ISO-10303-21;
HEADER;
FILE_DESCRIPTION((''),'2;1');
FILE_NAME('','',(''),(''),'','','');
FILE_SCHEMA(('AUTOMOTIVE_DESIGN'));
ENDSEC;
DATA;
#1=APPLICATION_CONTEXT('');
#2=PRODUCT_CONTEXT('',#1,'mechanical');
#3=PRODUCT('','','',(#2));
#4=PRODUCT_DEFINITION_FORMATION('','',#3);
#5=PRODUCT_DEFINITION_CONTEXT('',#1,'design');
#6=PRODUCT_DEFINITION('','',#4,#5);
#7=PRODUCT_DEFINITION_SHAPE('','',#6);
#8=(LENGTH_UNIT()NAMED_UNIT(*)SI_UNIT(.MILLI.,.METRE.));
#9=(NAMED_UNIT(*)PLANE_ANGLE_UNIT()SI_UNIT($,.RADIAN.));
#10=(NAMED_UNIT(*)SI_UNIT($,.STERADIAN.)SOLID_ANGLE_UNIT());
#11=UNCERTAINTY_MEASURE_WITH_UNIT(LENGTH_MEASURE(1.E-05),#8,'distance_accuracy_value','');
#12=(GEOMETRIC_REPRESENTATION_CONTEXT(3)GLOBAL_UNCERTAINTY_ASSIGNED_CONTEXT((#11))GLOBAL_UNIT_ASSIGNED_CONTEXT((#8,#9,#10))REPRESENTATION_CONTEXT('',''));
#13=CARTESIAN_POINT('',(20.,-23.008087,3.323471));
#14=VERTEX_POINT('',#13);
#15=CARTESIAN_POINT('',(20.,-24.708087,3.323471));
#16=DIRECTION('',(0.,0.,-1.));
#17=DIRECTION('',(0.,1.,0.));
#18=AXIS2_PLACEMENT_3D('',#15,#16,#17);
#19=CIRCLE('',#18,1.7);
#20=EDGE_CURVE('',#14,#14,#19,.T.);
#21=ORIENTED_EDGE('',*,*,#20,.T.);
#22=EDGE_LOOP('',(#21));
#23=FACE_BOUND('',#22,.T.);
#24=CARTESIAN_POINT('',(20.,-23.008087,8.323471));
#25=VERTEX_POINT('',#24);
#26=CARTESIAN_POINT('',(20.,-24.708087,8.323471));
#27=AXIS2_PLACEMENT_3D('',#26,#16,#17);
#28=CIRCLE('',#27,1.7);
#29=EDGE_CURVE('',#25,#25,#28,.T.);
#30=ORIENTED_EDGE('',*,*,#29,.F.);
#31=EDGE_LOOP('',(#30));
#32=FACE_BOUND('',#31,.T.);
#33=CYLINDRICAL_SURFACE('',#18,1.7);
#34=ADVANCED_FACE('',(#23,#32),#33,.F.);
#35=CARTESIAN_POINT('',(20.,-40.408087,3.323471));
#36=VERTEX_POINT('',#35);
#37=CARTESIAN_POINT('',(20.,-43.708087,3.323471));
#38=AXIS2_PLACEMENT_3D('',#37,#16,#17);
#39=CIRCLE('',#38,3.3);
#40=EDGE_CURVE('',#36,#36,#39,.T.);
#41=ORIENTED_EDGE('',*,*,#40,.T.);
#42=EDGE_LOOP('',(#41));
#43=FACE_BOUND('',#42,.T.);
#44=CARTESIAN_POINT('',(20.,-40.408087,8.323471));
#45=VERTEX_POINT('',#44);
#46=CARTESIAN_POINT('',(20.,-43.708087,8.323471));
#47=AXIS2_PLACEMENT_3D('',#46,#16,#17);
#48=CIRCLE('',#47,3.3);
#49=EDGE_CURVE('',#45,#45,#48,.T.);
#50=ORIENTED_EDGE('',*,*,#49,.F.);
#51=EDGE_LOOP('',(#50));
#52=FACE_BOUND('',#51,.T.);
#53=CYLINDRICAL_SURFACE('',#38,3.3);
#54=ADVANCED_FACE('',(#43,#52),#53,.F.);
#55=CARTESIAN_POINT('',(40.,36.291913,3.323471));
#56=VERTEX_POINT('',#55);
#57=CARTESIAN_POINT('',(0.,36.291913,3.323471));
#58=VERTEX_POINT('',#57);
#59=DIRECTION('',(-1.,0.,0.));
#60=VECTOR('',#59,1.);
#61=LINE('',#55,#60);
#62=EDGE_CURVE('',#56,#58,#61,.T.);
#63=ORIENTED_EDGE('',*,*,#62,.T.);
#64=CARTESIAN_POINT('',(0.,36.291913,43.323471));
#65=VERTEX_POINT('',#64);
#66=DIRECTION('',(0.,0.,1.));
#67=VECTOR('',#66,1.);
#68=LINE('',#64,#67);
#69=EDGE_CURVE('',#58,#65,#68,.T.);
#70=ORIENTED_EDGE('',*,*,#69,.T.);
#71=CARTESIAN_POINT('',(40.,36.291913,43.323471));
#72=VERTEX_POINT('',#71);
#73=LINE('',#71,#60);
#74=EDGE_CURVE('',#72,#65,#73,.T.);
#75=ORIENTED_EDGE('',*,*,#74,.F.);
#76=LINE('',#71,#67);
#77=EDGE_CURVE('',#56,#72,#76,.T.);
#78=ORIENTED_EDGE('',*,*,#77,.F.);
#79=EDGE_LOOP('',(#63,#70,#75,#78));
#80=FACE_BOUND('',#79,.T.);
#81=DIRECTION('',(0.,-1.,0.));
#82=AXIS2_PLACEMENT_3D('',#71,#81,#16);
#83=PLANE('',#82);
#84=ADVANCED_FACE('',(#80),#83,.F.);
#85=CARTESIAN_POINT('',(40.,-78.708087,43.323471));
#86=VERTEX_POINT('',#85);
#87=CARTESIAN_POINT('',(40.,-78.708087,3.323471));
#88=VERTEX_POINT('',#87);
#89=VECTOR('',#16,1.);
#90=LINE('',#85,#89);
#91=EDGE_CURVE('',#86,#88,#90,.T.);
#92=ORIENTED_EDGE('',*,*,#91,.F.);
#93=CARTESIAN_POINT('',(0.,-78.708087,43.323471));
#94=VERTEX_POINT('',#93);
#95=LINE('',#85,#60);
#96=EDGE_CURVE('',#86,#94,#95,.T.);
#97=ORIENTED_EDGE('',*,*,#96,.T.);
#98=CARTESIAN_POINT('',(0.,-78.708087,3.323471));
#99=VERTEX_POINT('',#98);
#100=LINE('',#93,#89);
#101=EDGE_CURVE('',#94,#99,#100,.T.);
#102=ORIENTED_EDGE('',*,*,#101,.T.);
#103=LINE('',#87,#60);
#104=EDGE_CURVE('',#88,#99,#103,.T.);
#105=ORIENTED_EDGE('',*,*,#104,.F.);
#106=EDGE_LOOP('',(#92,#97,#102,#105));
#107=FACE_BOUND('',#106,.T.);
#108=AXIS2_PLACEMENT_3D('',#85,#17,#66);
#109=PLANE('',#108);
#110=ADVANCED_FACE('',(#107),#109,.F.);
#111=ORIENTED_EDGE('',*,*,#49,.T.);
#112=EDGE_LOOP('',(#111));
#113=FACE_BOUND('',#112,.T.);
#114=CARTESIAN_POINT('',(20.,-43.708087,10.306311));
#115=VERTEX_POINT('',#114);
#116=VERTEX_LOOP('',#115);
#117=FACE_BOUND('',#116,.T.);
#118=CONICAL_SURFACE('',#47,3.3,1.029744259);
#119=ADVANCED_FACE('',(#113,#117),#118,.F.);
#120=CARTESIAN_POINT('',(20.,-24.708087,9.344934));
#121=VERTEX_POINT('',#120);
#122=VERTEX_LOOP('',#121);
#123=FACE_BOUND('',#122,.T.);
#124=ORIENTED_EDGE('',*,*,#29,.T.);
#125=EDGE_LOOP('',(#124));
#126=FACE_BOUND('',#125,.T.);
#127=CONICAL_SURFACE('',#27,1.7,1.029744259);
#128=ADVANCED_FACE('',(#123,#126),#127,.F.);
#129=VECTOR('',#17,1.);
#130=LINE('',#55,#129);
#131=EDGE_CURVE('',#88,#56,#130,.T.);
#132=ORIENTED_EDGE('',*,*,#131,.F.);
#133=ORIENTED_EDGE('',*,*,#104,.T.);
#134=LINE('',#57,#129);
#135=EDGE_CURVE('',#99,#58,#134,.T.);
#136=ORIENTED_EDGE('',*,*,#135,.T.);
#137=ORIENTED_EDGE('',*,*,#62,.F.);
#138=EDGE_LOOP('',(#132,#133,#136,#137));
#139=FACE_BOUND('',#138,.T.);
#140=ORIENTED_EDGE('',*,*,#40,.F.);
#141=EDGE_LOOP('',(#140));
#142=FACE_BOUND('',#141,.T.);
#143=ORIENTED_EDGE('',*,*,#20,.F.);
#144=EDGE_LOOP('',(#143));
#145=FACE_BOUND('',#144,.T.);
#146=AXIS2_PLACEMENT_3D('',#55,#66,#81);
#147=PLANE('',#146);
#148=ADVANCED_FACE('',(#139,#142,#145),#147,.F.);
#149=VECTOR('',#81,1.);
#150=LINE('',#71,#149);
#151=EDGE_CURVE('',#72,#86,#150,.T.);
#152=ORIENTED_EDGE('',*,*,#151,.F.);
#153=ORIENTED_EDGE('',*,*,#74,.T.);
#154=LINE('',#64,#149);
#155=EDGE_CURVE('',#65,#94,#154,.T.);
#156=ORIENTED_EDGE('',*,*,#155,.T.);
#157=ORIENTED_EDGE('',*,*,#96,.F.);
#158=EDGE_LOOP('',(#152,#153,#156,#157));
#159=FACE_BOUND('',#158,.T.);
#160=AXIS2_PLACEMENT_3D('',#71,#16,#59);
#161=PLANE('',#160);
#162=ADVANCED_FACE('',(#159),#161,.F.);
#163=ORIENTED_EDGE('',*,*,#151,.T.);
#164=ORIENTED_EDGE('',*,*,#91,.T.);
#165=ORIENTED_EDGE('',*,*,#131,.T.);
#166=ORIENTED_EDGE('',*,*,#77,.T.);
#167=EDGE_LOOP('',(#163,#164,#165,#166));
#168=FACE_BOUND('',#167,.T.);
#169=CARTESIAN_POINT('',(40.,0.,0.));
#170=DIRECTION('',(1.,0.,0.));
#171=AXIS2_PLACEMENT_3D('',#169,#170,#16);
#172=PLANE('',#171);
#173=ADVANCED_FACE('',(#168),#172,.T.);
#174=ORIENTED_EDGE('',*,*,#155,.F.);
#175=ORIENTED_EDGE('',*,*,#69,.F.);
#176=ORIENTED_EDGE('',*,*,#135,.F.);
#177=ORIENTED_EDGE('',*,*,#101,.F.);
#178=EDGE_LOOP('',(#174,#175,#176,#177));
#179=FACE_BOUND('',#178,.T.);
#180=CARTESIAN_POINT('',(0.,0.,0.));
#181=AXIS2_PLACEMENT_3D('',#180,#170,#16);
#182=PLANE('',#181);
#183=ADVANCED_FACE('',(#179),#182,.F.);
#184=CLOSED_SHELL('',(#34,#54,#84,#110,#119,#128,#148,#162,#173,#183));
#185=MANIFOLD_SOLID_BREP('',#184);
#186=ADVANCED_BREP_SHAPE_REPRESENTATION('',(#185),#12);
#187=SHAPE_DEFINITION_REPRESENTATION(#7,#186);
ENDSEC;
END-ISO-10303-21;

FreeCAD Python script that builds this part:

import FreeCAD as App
import Part
import Sketcher

V = App.Vector

doc = App.newDocument("Part")
body = doc.addObject("PartDesign::Body", "Body")

sketch1 = doc.addObject("Sketcher::SketchObject", "Sketch")
body.addObject(sketch1)
sketch1.AttachmentSupport = (doc.YZ_Plane, [""])
sketch1.MapMode = "FlatFace"
sketch1.addGeometry(Part.LineSegment(V(36.291913, 43.323471, 0), V(-78.708087, 43.323471, 0)), False)
sketch1.addGeometry(Part.LineSegment(V(-78.708087, 43.323471, 0), V(-78.708087, 3.323471, 0)), False)
sketch1.addGeometry(Part.LineSegment(V(-78.708087, 3.323471, 0), V(36.291913, 3.323471, 0)), False)
sketch1.addGeometry(Part.LineSegment(V(36.291913, 3.323471, 0), V(36.291913, 43.323471, 0)), False)
sketch1.addConstraint(Sketcher.Constraint("Coincident", 0, 2, 1, 1))
sketch1.addConstraint(Sketcher.Constraint("Coincident", 1, 2, 2, 1))
sketch1.addConstraint(Sketcher.Constraint("Coincident", 2, 2, 3, 1))
sketch1.addConstraint(Sketcher.Constraint("Coincident", 3, 2, 0, 1))
sketch1.addConstraint(Sketcher.Constraint("Horizontal", 0))
sketch1.addConstraint(Sketcher.Constraint("Vertical", 1))
sketch1.addConstraint(Sketcher.Constraint("Horizontal", 2))
sketch1.addConstraint(Sketcher.Constraint("Vertical", 3))
sketch1.addConstraint(Sketcher.Constraint("DistanceX", 0, 2, 0, 1, 115.0))
sketch1.addConstraint(Sketcher.Constraint("DistanceY", 1, 2, 1, 1, 40.0))
sketch1.addConstraint(Sketcher.Constraint("DistanceY", -1, 1, 0, 2, 43.323471))
sketch1.addConstraint(Sketcher.Constraint("DistanceX", 0, 2, -1, 1, 78.708087))
pad1 = doc.addObject("PartDesign::Pad", "Pad")
body.addObject(pad1)
pad1.Profile = sketch1
pad1.Length = 40

sketch2 = doc.addObject("Sketcher::SketchObject", "Sketch001")
body.addObject(sketch2)
sketch2.AttachmentSupport = (doc.XY_Plane, [""])
sketch2.MapMode = "FlatFace"
sketch2.AttachmentOffset = App.Placement(V(0, 0, 3.323471), App.Rotation())
sketch2.addGeometry(Part.Circle(V(20, -24.708087, 0), V(0, 0, 1), 1.7), False)
sketch2.addConstraint(Sketcher.Constraint("Diameter", 0, 3.4))
sketch2.addConstraint(Sketcher.Constraint("DistanceX", -1, 1, 0, 3, 20.0))
sketch2.addConstraint(Sketcher.Constraint("DistanceY", 0, 3, -1, 1, 24.708087))
doc.recompute()
hole = doc.addObject("PartDesign::Hole", "Hole")
body.addObject(hole)
hole.Profile = sketch2
hole.ThreadType = "None"
hole.Diameter = 3.4
hole.DepthType = "Dimension"
hole.Depth = 5
hole.DrillPoint = "Angled"
hole.DrillPointAngle = 118
hole.Reversed = True

sketch3 = doc.addObject("Sketcher::SketchObject", "Sketch002")
body.addObject(sketch3)
sketch3.AttachmentSupport = (doc.XY_Plane, [""])
sketch3.MapMode = "FlatFace"
sketch3.AttachmentOffset = App.Placement(V(0, 0, 3.323471), App.Rotation())
sketch3.addGeometry(Part.Circle(V(20, -43.708087, 0), V(0, 0, 1), 3.3), False)
sketch3.addConstraint(Sketcher.Constraint("Diameter", 0, 6.6))
sketch3.addConstraint(Sketcher.Constraint("DistanceX", -1, 1, 0, 3, 20.0))
sketch3.addConstraint(Sketcher.Constraint("DistanceY", 0, 3, -1, 1, 43.708087))
doc.recompute()
hole2 = doc.addObject("PartDesign::Hole", "Hole001")
body.addObject(hole2)
hole2.Profile = sketch3
hole2.ThreadType = "None"
hole2.Diameter = 6.6
hole2.DepthType = "Dimension"
hole2.Depth = 5
hole2.DrillPoint = "Angled"
hole2.DrillPointAngle = 118
hole2.Reversed = True

doc.recompute()
